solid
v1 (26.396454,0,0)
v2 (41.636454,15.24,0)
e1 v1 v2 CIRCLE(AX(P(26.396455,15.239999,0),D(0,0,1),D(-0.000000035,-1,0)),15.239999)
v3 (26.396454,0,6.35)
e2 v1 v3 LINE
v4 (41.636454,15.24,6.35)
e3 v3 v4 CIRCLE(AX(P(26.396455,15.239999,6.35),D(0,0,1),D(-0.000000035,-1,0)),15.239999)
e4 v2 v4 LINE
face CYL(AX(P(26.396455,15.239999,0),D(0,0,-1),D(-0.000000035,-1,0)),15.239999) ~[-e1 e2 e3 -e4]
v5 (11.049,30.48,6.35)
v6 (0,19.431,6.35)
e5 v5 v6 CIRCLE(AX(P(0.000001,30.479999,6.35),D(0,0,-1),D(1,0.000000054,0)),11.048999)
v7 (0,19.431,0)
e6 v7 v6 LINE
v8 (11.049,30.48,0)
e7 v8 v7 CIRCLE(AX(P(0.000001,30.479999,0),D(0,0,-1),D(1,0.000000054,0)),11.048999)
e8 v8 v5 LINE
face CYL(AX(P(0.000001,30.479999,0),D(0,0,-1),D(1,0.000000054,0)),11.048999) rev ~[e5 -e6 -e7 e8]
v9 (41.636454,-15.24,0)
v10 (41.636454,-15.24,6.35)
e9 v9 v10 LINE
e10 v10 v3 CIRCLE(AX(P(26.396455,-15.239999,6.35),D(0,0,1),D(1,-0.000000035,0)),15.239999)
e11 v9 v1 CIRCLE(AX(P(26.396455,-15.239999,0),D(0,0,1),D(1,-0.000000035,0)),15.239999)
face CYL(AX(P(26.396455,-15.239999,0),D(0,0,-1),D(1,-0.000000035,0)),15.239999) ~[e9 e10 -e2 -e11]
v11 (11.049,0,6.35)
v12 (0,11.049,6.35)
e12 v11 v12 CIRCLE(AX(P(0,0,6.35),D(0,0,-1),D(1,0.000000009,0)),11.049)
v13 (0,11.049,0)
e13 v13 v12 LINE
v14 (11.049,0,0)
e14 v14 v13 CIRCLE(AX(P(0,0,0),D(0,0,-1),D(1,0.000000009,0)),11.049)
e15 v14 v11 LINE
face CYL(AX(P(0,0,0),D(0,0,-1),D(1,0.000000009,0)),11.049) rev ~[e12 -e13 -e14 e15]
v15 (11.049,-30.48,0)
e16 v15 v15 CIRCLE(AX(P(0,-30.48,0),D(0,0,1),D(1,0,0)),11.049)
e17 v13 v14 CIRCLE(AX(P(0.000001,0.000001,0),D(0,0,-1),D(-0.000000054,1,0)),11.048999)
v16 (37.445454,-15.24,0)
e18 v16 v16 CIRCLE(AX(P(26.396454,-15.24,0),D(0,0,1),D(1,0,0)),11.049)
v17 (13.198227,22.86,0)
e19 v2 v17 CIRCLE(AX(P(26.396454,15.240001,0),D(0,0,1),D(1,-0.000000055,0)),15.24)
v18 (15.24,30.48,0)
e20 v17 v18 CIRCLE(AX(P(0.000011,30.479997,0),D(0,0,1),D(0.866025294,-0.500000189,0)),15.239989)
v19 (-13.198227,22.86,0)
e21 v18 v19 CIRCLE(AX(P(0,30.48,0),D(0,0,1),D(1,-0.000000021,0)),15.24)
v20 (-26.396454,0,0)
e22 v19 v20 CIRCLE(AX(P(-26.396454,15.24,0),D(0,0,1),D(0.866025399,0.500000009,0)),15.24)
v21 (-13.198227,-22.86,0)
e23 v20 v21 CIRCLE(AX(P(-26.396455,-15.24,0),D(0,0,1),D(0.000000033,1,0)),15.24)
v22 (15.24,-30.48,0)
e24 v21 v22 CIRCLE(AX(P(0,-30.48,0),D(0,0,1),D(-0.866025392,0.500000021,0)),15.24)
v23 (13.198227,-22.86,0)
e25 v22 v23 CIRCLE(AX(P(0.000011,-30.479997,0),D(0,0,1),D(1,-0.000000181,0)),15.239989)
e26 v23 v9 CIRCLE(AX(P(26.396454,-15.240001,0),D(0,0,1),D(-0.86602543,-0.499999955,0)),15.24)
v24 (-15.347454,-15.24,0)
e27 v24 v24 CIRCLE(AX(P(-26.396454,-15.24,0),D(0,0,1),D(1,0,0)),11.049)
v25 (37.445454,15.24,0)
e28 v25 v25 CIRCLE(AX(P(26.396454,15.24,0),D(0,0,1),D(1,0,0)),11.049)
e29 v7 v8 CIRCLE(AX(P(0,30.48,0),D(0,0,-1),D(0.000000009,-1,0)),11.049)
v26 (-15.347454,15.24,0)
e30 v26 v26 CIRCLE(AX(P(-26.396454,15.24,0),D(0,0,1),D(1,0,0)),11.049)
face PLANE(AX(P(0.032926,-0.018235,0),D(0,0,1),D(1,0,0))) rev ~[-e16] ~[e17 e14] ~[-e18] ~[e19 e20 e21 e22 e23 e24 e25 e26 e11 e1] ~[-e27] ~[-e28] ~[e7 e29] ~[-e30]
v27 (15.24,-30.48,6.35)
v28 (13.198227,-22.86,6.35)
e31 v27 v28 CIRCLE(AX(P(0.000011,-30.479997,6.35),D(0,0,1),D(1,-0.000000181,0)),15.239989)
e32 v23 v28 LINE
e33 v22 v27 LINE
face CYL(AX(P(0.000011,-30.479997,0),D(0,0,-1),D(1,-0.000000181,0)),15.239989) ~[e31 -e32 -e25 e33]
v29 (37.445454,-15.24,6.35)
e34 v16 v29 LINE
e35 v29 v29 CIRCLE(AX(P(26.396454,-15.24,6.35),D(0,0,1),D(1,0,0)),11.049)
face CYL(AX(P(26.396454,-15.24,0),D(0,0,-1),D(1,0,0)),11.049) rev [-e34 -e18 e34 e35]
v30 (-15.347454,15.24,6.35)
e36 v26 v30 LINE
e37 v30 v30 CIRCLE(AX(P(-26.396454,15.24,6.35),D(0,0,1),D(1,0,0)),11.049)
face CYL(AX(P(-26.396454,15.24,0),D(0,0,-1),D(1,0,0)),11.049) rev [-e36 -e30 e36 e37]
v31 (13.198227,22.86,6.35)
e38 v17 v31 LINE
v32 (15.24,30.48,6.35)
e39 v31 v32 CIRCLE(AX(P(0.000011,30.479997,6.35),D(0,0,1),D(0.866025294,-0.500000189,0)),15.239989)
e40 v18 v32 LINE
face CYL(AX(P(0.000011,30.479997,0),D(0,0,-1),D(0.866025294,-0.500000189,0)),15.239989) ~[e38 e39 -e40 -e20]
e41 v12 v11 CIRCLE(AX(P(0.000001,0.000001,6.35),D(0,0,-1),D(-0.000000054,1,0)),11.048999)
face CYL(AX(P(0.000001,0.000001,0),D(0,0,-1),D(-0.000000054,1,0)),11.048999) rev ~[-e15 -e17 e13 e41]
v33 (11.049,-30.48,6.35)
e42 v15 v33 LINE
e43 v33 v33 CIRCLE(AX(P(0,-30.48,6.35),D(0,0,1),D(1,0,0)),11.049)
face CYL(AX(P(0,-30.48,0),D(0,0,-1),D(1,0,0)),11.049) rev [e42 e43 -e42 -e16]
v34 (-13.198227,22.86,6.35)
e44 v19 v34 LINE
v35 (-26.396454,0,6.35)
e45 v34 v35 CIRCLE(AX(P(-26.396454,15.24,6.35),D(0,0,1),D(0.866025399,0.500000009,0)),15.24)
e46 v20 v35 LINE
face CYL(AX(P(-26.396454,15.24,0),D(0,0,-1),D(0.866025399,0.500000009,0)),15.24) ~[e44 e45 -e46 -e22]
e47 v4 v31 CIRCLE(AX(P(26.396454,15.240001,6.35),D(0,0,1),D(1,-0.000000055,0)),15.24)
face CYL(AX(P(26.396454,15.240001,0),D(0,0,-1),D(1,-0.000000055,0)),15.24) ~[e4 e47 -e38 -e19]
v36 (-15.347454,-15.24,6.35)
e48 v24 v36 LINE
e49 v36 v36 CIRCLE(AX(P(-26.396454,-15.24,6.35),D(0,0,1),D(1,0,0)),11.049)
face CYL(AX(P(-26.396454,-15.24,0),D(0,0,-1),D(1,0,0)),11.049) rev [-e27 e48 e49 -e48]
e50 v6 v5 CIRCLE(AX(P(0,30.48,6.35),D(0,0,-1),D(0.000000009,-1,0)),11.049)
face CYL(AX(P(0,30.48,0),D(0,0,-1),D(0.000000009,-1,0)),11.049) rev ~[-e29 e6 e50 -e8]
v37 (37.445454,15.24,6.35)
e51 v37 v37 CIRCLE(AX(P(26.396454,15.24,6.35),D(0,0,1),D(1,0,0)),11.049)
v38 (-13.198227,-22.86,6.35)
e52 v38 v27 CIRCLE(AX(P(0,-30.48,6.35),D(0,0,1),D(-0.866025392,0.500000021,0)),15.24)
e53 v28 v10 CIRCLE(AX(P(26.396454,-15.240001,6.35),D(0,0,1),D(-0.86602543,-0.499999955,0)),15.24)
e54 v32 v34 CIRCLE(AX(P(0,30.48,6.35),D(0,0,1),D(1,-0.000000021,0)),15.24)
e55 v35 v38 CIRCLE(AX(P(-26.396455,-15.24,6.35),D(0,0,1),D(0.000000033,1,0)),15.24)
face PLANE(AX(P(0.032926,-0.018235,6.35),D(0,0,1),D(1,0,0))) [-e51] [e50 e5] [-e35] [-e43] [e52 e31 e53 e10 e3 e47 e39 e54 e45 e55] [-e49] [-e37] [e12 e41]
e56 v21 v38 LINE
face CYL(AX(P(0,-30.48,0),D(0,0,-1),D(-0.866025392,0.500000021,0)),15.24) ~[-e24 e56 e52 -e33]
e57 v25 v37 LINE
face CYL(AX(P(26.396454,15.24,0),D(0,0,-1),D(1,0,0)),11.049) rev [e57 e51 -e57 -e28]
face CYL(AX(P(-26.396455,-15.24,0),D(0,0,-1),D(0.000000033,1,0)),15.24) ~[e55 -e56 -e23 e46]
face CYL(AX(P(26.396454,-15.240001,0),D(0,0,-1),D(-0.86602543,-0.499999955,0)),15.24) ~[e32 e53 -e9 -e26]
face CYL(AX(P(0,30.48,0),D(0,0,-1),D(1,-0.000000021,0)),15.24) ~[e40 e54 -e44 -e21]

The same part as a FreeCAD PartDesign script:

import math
import FreeCAD as App
import Part
import Sketcher
Q = App.Units.Quantity

doc = App.newDocument("Part")
body = doc.addObject("PartDesign::Body", "Body")

# Sketch on XY plane
sketch1 = body.newObject("Sketcher::SketchObject", "Sketch")
sketch1.AttachmentSupport = (doc.getObject("XY_Plane"), [""])
sketch1.MapMode = "FlatFace"
sketch1.addGeometry(Part.ArcOfCircle(Part.Circle(App.Vector(26, 15, 0), App.Vector(0, 0, 1), 15), math.radians(0), math.radians(150)), False)
sketch1.addGeometry(Part.ArcOfCircle(Part.Circle(App.Vector(0, 30, 0), App.Vector(0, 0, 1), 15), math.radians(-30), math.radians(0)), False)
sketch1.addGeometry(Part.ArcOfCircle(Part.Circle(App.Vector(0, 30, 0), App.Vector(0, 0, 1), 15), math.radians(0), math.radians(210)), False)
sketch1.addGeometry(Part.ArcOfCircle(Part.Circle(App.Vector(-26, 15, 0), App.Vector(0, 0, 1), 15), math.radians(30), math.radians(270)), False)
sketch1.addGeometry(Part.ArcOfCircle(Part.Circle(App.Vector(-26, -15, 0), App.Vector(0, 0, 1), 15), math.radians(90), math.radians(330)), False)
sketch1.addGeometry(Part.ArcOfCircle(Part.Circle(App.Vector(0, -30, 0), App.Vector(0, 0, 1), 15), math.radians(150), math.radians(360)), False)
sketch1.addGeometry(Part.ArcOfCircle(Part.Circle(App.Vector(0, -30, 0), App.Vector(0, 0, 1), 15), math.radians(0), math.radians(30)), False)
sketch1.addGeometry(Part.ArcOfCircle(Part.Circle(App.Vector(26, -15, 0), App.Vector(0, 0, 1), 15), math.radians(-150), math.radians(0)), False)
sketch1.addGeometry(Part.ArcOfCircle(Part.Circle(App.Vector(26, -15, 0), App.Vector(0, 0, 1), 15), math.radians(0), math.radians(90)), False)
sketch1.addGeometry(Part.ArcOfCircle(Part.Circle(App.Vector(26, 15, 0), App.Vector(0, 0, 1), 15), math.radians(-90), math.radians(0)), False)
sketch1.addGeometry(Part.Circle(App.Vector(-26, -15, 0), App.Vector(0, 0, 1), 11), False)
sketch1.addGeometry(Part.ArcOfCircle(Part.Circle(App.Vector(0, 0, 0), App.Vector(0, 0, 1), 11), math.radians(90), math.radians(360)), False)
sketch1.addGeometry(Part.ArcOfCircle(Part.Circle(App.Vector(0, 0, 0), App.Vector(0, 0, 1), 11), math.radians(0), math.radians(90)), False)
sketch1.addGeometry(Part.Circle(App.Vector(0, -30, 0), App.Vector(0, 0, 1), 11), False)
sketch1.addGeometry(Part.Circle(App.Vector(26, -15, 0), App.Vector(0, 0, 1), 11), False)
sketch1.addGeometry(Part.Circle(App.Vector(-26, 15, 0), App.Vector(0, 0, 1), 11), False)
sketch1.addGeometry(Part.ArcOfCircle(Part.Circle(App.Vector(0, 30, 0), App.Vector(0, 0, 1), 11), math.radians(0), math.radians(270)), False)
sketch1.addGeometry(Part.ArcOfCircle(Part.Circle(App.Vector(0, 30, 0), App.Vector(0, 0, 1), 11), math.radians(-90), math.radians(0)), False)
sketch1.addGeometry(Part.Circle(App.Vector(26, 15, 0), App.Vector(0, 0, 1), 11), False)
sketch1.addConstraint(Sketcher.Constraint("Tangent", 0, 2, 1, 1))
sketch1.addConstraint(Sketcher.Constraint("Tangent", 1, 2, 2, 1))
sketch1.addConstraint(Sketcher.Constraint("Tangent", 2, 2, 3, 1))
sketch1.addConstraint(Sketcher.Constraint("Tangent", 3, 2, 4, 1))
sketch1.addConstraint(Sketcher.Constraint("Tangent", 4, 2, 5, 1))
sketch1.addConstraint(Sketcher.Constraint("Tangent", 5, 2, 6, 1))
sketch1.addConstraint(Sketcher.Constraint("Tangent", 6, 2, 7, 1))
sketch1.addConstraint(Sketcher.Constraint("Tangent", 7, 2, 8, 1))
sketch1.addConstraint(Sketcher.Constraint("Tangent", 8, 2, 9, 1))
sketch1.addConstraint(Sketcher.Constraint("Tangent", 9, 2, 0, 1))
sketch1.addConstraint(Sketcher.Constraint("Tangent", 11, 1, 12, 2))
sketch1.addConstraint(Sketcher.Constraint("Coincident", 12, 1, 11, 2))
sketch1.addConstraint(Sketcher.Constraint("Tangent", 16, 1, 17, 2))
sketch1.addConstraint(Sketcher.Constraint("Coincident", 17, 1, 16, 2))
sketch1.addConstraint(Sketcher.Constraint("Coincident", 11, 3, -1, 1))
sketch1.addConstraint(Sketcher.Constraint("Coincident", 10, 3, 4, 3))
sketch1.addConstraint(Sketcher.Constraint("Coincident", 13, 3, 5, 3))
sketch1.addConstraint(Sketcher.Constraint("Coincident", 14, 3, 7, 3))
sketch1.addConstraint(Sketcher.Constraint("Coincident", 15, 3, 3, 3))
sketch1.addConstraint(Sketcher.Constraint("Coincident", 16, 3, 2, 3))
sketch1.addConstraint(Sketcher.Constraint("Coincident", 18, 3, 0, 3))
sketch1.addConstraint(Sketcher.Constraint("Equal", 0, 2))
sketch1.addConstraint(Sketcher.Constraint("Equal", 2, 3))
sketch1.addConstraint(Sketcher.Constraint("Equal", 3, 4))
sketch1.addConstraint(Sketcher.Constraint("Equal", 4, 5))
sketch1.addConstraint(Sketcher.Constraint("Equal", 1, 6))
sketch1.addConstraint(Sketcher.Constraint("Equal", 5, 7))
sketch1.addConstraint(Sketcher.Constraint("Equal", 7, 8))
sketch1.addConstraint(Sketcher.Constraint("Equal", 8, 9))
sketch1.addConstraint(Sketcher.Constraint("Equal", 10, 11))
sketch1.addConstraint(Sketcher.Constraint("Equal", 12, 13))
sketch1.addConstraint(Sketcher.Constraint("Equal", 13, 14))
sketch1.addConstraint(Sketcher.Constraint("Equal", 14, 15))
sketch1.addConstraint(Sketcher.Constraint("Equal", 15, 16))
sketch1.addConstraint(Sketcher.Constraint("Equal", 17, 18))
sketch1.addConstraint(Sketcher.Constraint("Symmetric", 0, 3, 4, 3, -1, 1))
sketch1.addConstraint(Sketcher.Constraint("Symmetric", 2, 3, 5, 3, -1, 1))
sketch1.addConstraint(Sketcher.Constraint("Symmetric", 0, 3, 3, 3, -2))
sketch1.addConstraint(Sketcher.Constraint("PointOnObject", 11, 1, -2))
sketch1.addConstraint(Sketcher.Constraint("PointOnObject", 12, 1, -1))
sketch1.addConstraint(Sketcher.Constraint("PointOnObject", 17, 1, -2))
sketch1.addConstraint(Sketcher.Constraint("Horizontal", 17, 3, 1, 2))
sketch1.addConstraint(Sketcher.Constraint("Horizontal", 13, 3, 5, 2))
sketch1.addConstraint(Sketcher.Constraint("Horizontal", 14, 3, 7, 2))
sketch1.addConstraint(Sketcher.Constraint("Horizontal", 18, 3, 9, 2))
sketch1.addConstraint(Sketcher.Constraint("Horizontal", 1, 2, 16, 1))
sketch1.addConstraint(Sketcher.Constraint("Radius", 0, Q("0.6 in")))
sketch1.addConstraint(Sketcher.Constraint("Diameter", 10, Q("0.87 in")))
sketch1.addConstraint(Sketcher.Constraint("DistanceY", -1, 1, 1, 3, Q("1.1999999 in")))
pad1 = body.newObject("PartDesign::Pad", "Pad")
pad1.Profile = sketch1
pad1.Length = Q("0.25 in")

doc.recompute()
